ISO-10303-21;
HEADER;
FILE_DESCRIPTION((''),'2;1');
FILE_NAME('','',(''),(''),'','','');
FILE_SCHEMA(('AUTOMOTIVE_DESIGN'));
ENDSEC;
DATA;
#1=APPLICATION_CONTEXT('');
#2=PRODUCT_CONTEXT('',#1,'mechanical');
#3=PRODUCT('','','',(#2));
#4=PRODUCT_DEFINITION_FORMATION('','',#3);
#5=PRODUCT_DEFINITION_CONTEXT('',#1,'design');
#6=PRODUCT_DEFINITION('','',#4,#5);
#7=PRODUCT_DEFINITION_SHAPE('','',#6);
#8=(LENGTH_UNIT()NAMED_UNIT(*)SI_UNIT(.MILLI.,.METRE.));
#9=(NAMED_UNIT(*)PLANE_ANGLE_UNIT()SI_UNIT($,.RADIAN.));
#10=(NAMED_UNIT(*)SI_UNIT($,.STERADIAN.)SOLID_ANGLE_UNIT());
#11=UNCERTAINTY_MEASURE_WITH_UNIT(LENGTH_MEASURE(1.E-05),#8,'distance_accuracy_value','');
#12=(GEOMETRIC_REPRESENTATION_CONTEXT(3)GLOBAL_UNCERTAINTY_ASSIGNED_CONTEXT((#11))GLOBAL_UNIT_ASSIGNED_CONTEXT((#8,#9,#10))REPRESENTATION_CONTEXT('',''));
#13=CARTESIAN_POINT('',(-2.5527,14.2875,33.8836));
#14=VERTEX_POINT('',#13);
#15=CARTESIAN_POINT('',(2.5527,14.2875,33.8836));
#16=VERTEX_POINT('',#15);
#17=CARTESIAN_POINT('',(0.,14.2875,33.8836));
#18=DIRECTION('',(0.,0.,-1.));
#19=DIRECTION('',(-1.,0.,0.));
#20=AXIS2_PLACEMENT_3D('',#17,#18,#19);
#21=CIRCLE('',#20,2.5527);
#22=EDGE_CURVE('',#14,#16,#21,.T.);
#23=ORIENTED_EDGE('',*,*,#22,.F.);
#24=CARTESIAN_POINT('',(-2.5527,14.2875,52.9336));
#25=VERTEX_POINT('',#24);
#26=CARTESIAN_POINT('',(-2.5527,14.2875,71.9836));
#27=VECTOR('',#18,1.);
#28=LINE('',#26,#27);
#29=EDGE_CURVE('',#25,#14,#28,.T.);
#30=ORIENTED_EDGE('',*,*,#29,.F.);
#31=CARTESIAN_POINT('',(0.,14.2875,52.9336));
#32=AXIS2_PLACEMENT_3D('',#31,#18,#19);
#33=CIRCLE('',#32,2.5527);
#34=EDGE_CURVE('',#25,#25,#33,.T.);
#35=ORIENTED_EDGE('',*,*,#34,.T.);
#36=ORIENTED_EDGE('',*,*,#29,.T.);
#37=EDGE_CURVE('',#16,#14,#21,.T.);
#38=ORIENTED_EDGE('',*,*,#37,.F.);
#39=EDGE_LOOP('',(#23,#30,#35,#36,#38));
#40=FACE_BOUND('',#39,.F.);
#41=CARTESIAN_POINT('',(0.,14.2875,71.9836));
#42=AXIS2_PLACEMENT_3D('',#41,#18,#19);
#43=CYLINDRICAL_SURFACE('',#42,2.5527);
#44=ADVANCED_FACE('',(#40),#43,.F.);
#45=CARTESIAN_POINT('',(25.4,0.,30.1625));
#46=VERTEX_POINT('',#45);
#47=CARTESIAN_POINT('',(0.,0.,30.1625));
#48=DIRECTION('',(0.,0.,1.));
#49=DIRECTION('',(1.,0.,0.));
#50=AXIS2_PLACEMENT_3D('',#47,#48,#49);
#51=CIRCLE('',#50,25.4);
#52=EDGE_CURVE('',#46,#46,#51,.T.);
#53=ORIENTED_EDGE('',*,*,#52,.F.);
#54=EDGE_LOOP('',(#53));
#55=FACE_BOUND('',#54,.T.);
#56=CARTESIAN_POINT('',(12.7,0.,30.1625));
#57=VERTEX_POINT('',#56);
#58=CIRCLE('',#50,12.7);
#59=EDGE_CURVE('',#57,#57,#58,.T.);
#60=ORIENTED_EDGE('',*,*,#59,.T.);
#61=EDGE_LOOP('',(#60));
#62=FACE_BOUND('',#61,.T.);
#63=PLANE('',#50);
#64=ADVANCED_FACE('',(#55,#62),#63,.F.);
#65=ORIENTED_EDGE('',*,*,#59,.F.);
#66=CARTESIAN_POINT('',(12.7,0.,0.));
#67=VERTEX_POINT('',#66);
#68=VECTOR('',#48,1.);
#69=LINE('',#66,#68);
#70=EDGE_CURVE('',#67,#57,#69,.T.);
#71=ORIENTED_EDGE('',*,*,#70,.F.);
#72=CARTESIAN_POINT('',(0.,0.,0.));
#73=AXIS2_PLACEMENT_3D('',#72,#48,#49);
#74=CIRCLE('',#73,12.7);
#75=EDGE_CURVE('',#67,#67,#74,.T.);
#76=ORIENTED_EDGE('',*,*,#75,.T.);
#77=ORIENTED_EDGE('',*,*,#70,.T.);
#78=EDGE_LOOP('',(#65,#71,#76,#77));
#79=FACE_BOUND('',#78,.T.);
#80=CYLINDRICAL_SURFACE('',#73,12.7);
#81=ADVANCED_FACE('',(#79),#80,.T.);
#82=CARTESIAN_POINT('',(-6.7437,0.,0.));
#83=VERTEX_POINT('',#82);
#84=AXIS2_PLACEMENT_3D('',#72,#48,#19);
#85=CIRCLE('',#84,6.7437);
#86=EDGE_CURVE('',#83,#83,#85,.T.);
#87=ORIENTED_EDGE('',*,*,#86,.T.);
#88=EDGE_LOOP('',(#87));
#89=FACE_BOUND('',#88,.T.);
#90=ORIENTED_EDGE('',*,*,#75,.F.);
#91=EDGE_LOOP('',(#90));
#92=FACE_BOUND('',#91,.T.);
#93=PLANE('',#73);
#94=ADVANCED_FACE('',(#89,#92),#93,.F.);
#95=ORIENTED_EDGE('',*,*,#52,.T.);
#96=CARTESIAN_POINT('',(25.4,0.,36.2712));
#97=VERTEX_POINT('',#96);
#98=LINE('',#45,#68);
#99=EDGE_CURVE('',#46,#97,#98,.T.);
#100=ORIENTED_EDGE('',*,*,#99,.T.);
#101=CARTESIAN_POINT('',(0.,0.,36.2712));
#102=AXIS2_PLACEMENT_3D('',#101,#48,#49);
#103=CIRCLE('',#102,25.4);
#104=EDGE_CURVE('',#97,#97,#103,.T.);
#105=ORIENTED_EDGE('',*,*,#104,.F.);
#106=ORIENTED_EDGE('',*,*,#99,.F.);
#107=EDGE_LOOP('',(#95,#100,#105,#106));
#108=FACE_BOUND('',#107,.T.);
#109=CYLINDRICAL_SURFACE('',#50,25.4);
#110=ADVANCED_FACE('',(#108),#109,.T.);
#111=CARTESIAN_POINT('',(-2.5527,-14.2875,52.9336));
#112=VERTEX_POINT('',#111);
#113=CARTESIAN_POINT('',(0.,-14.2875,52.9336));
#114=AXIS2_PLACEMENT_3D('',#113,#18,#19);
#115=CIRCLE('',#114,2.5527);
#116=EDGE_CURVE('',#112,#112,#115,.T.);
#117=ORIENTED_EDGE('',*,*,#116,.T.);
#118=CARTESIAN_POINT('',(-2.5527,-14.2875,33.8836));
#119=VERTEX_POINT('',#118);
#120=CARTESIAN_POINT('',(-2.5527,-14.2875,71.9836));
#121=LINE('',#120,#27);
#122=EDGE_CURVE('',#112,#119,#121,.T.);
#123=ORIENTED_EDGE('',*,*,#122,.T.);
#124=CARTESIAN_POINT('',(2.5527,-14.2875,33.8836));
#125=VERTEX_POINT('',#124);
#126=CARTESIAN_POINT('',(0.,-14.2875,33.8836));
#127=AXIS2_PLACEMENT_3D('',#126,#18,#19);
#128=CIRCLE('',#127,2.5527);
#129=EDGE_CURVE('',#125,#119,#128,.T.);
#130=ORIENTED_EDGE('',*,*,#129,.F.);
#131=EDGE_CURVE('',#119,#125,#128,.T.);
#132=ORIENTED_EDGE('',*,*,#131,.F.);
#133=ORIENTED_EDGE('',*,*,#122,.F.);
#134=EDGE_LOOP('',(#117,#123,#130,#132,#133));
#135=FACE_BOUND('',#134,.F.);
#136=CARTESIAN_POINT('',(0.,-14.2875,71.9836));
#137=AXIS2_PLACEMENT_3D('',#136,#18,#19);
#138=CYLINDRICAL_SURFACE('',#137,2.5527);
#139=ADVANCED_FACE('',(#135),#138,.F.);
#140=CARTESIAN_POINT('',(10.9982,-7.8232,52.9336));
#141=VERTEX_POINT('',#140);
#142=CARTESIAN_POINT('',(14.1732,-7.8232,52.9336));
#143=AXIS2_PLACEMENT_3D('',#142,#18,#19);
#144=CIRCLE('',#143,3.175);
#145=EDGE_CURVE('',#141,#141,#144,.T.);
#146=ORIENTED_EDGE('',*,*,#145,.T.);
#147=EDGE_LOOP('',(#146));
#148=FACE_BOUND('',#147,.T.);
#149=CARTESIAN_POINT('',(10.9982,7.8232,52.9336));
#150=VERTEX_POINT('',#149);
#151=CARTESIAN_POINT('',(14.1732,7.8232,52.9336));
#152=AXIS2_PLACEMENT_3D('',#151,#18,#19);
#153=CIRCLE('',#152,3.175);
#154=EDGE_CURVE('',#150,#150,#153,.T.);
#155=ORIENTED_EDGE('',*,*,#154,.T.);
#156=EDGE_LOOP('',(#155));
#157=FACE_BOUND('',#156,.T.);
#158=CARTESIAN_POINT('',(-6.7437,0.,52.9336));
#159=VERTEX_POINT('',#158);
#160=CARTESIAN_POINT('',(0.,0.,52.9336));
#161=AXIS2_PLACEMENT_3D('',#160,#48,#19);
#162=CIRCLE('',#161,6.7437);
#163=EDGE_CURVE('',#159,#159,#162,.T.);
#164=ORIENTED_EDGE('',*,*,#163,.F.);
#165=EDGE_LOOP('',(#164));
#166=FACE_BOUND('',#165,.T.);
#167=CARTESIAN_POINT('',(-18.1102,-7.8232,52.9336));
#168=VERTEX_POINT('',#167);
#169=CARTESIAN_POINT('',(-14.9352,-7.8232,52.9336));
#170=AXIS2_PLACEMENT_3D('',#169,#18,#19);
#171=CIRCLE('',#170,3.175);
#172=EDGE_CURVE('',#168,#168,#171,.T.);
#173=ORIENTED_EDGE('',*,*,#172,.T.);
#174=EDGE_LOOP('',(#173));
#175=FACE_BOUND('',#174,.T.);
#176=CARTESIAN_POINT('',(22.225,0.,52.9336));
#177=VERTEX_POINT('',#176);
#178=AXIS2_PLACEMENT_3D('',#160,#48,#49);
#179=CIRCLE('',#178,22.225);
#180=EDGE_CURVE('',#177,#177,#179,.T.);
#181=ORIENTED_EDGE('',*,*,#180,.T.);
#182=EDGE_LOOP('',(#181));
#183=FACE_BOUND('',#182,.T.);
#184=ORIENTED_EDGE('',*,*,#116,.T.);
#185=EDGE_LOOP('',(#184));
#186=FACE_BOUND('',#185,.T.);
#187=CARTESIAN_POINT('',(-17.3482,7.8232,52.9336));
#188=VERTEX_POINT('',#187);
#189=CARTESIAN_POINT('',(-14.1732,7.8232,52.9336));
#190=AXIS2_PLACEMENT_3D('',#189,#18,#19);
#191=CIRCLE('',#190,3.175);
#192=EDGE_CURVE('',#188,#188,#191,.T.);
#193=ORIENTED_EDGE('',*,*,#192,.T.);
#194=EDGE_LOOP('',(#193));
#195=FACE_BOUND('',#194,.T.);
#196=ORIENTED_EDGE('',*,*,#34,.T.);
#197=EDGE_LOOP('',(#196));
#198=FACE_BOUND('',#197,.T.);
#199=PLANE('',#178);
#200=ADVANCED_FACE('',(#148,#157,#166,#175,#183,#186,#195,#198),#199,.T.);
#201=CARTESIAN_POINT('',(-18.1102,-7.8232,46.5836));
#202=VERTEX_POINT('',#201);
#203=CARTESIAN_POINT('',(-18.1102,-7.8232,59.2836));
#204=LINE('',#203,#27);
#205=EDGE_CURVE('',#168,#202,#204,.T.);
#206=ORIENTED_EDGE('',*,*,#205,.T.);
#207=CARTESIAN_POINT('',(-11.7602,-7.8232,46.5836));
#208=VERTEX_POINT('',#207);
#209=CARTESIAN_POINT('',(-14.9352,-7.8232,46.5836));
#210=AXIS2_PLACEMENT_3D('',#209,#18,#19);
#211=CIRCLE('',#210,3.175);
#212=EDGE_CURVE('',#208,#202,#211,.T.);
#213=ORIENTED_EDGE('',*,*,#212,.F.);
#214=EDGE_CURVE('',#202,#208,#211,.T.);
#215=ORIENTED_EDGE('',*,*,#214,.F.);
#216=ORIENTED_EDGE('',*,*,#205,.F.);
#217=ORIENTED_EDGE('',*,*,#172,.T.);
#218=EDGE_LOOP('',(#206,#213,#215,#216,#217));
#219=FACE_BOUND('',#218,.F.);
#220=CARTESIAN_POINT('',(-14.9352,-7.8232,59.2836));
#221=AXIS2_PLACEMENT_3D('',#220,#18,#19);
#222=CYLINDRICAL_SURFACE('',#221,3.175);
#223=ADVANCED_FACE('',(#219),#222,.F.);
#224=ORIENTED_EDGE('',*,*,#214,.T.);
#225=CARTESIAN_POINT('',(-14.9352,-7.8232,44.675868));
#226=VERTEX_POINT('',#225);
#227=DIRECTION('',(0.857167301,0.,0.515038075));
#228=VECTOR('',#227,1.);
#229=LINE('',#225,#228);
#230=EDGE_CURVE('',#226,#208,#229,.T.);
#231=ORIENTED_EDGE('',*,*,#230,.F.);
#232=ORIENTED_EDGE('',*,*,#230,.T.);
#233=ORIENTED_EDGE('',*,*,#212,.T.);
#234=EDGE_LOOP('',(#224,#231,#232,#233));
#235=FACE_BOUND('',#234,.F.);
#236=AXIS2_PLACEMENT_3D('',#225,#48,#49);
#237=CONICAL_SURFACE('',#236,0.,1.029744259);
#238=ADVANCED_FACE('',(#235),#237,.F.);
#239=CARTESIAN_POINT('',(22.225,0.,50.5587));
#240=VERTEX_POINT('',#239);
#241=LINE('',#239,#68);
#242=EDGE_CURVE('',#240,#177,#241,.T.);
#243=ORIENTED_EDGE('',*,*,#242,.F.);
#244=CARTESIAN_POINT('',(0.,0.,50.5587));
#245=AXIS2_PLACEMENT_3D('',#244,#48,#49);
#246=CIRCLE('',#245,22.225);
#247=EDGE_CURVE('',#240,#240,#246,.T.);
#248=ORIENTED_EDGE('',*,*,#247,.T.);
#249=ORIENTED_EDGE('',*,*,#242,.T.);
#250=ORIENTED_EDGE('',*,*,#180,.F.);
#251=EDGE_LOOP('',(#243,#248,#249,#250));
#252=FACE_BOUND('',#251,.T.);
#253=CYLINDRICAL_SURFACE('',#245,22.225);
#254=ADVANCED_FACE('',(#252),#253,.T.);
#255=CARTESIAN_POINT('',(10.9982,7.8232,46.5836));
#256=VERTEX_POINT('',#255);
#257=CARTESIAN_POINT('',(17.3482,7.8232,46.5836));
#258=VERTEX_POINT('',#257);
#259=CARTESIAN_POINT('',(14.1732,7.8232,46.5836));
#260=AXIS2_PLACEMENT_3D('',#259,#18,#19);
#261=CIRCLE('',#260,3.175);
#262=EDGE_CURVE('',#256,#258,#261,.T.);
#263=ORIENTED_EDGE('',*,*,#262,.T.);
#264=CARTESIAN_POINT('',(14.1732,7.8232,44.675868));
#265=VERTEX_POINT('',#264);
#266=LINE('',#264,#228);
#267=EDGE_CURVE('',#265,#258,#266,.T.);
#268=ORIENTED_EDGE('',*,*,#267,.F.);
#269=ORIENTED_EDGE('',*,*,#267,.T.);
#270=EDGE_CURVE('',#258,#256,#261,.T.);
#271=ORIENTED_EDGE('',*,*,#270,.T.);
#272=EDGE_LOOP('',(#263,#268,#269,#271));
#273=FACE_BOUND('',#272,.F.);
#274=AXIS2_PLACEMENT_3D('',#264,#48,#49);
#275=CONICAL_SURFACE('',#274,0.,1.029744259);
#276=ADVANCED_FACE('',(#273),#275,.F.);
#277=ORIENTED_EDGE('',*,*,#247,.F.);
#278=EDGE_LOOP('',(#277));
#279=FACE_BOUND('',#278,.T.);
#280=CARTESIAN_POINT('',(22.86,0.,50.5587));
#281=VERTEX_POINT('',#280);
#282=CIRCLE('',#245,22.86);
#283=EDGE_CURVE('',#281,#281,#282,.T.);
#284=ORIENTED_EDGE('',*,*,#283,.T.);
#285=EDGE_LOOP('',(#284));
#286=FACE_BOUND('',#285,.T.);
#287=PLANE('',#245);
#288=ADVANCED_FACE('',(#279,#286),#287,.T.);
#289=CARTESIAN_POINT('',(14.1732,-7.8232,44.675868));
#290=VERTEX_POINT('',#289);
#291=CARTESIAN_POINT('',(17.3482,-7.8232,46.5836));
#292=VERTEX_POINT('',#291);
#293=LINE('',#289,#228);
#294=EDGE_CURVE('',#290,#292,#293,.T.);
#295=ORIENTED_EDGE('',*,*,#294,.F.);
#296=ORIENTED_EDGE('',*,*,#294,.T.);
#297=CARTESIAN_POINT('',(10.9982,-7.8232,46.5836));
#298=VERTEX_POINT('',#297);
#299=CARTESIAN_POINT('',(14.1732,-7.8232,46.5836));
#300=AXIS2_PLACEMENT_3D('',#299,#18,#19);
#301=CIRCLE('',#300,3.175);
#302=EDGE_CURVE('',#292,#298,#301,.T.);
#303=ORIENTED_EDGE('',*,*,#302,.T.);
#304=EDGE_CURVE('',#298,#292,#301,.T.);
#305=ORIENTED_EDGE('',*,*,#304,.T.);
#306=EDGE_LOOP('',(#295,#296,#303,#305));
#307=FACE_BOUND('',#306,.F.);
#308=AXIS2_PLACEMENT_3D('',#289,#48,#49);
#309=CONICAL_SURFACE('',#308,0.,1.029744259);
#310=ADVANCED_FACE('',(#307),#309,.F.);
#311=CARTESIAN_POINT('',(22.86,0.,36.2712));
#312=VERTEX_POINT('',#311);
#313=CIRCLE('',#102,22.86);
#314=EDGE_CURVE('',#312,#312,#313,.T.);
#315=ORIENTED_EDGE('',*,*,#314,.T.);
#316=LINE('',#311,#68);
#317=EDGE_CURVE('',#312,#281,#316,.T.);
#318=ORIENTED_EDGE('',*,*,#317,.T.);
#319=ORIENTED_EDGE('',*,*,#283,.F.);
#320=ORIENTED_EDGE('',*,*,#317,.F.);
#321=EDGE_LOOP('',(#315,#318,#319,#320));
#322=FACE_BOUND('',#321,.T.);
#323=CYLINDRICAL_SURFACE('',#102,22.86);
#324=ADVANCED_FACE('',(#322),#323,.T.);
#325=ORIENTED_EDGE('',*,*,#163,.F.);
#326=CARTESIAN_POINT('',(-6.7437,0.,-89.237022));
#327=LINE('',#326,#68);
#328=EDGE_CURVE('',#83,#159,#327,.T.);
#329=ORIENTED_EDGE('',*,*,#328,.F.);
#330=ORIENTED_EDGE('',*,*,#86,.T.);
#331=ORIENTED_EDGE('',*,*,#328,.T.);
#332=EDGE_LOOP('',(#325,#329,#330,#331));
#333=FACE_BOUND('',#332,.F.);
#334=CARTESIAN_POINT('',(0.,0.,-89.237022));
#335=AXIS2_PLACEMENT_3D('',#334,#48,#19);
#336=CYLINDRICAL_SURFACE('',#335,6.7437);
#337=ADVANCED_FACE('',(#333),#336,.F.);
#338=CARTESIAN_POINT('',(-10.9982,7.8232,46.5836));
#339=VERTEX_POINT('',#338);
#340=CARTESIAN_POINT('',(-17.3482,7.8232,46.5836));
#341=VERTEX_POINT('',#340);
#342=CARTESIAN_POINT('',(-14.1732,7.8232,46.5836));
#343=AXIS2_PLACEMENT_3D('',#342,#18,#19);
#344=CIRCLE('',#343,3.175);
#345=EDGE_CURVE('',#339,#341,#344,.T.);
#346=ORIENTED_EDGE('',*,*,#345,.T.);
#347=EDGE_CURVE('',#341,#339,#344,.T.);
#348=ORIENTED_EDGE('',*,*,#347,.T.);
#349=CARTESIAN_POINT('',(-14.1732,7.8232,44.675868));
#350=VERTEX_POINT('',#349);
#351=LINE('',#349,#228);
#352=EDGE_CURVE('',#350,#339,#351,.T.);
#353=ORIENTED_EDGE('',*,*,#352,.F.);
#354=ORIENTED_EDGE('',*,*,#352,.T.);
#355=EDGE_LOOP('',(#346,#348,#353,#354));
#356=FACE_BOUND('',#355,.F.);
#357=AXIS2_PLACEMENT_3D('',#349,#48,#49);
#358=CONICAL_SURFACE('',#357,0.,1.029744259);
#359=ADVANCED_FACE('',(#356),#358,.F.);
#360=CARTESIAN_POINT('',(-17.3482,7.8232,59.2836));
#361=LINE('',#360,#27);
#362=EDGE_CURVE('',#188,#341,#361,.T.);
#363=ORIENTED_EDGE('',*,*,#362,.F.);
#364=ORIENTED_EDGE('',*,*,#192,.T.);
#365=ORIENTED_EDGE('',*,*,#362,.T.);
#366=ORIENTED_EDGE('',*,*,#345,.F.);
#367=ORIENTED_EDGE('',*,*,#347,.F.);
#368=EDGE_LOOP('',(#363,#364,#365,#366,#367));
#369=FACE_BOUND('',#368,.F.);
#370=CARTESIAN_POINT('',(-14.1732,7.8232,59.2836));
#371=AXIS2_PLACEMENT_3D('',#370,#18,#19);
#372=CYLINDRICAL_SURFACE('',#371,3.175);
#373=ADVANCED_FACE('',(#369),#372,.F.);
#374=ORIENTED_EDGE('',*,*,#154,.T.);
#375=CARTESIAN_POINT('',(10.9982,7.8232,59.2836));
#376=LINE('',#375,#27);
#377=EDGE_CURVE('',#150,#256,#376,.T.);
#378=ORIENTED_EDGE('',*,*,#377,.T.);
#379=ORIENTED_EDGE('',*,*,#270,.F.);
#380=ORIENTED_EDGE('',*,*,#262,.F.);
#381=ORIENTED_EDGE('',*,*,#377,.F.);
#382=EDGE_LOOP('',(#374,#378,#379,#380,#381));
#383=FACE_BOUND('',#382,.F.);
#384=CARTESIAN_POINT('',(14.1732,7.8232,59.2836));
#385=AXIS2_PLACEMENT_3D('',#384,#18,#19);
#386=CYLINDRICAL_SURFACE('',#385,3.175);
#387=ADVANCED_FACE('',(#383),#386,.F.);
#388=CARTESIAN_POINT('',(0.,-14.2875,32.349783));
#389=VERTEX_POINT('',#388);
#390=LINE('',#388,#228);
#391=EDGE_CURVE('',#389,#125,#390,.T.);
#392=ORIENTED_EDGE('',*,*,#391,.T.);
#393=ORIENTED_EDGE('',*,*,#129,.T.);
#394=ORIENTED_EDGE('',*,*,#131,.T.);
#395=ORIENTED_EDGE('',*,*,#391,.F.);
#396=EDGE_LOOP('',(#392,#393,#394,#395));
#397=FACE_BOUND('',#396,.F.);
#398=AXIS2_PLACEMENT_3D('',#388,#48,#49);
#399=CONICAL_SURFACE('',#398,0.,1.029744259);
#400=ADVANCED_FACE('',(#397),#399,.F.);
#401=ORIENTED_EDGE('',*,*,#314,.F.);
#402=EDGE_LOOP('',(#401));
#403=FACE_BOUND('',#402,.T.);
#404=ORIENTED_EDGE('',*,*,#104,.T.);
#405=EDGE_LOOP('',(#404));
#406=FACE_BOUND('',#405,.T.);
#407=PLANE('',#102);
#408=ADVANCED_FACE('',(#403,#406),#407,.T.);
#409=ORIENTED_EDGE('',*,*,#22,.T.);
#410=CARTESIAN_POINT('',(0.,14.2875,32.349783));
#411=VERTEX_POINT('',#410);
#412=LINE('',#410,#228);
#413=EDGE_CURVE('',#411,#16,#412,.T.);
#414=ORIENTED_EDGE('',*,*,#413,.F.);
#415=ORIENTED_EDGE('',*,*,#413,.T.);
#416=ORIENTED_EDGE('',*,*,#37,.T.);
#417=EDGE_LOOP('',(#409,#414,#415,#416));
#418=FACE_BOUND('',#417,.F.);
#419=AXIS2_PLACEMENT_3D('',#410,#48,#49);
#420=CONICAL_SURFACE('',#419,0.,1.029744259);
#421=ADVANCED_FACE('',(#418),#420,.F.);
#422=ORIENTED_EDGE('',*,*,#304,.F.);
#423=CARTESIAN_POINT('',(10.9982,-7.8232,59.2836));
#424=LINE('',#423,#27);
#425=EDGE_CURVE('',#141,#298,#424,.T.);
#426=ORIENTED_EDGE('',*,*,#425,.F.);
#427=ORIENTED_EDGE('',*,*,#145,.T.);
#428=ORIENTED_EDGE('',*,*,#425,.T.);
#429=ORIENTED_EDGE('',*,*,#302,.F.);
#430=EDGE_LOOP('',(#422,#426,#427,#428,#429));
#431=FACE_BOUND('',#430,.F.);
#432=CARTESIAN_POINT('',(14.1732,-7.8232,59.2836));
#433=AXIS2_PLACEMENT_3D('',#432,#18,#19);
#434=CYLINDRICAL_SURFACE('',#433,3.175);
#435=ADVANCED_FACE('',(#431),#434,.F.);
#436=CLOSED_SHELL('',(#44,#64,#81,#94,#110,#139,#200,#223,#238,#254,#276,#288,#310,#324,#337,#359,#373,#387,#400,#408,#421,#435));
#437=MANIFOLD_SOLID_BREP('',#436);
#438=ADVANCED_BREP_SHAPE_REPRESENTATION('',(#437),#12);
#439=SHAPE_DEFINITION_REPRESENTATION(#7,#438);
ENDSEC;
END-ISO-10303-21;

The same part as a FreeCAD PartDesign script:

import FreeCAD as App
import Part
import Sketcher
from FreeCAD import Vector
Q = App.Units.Quantity


def add_polygon(sketch, points):
    """Adds a closed chain of lines whose ends are joined by coincident constraints."""
    first, n = sketch.GeometryCount, len(points)
    for a, b in zip(points, points[1:] + points[:1]):
        sketch.addGeometry(Part.LineSegment(App.Vector(*a, 0), App.Vector(*b, 0)), False)
    for i in range(n):
        sketch.addConstraint(Sketcher.Constraint("Coincident", first + i, 2, first + (i + 1) % n, 1))

doc = App.newDocument("Part")
body = doc.addObject("PartDesign::Body", "Body")

sketch1 = doc.addObject("Sketcher::SketchObject", "Sketch")
body.addObject(sketch1)
sketch1.AttachmentSupport = (doc.XZ_Plane, [""])
sketch1.MapMode = "FlatFace"
add_polygon(sketch1, [(0, 52.9336), (0, 0), (12.7, 0), (12.7, 30.1625), (25.4, 30.1625), (25.4, 36.2712), (22.86, 36.2712), (22.86, 50.5587), (22.225, 50.5587), (22.225, 52.9336)])
sketch1.addConstraint([
    Sketcher.Constraint("Vertical", 0),
    Sketcher.Constraint("Horizontal", 1),
    Sketcher.Constraint("Vertical", 2),
    Sketcher.Constraint("Horizontal", 3),
    Sketcher.Constraint("Vertical", 4),
    Sketcher.Constraint("Horizontal", 5),
    Sketcher.Constraint("Vertical", 6),
    Sketcher.Constraint("Horizontal", 7),
    Sketcher.Constraint("Vertical", 8),
    Sketcher.Constraint("Horizontal", 9),
    Sketcher.Constraint("Coincident", 0, 2, -1, 1),
    Sketcher.Constraint("Equal", 1, 3),
    Sketcher.Constraint("DistanceX", 1, 1, 1, 2, Q("0.5 in")),
    Sketcher.Constraint("DistanceX", 5, 2, 5, 1, Q("0.1 in")),
    Sketcher.Constraint("DistanceX", 7, 2, 7, 1, Q("0.025 in")),
    Sketcher.Constraint("DistanceY", 0, 2, 0, 1, Q("2.084 in")),
    Sketcher.Constraint("DistanceY", 2, 1, 2, 2, Q("1.1875 in")),
    Sketcher.Constraint("DistanceY", 6, 1, 6, 2, Q("0.5625 in")),
    Sketcher.Constraint("DistanceY", 4, 1, 4, 2, Q("0.2405 in")),
])
revolution = doc.addObject("PartDesign::Revolution", "Revolution")
body.addObject(revolution)
revolution.Profile = sketch1
revolution.ReferenceAxis = (sketch1, ["V_Axis"])
revolution.Angle = 360

sketch2 = doc.addObject("Sketcher::SketchObject", "Sketch001")
body.addObject(sketch2)
sketch2.AttachmentSupport = (doc.XY_Plane, [""])
sketch2.MapMode = "FlatFace"
sketch2.addGeometry(Part.Circle(Vector(0, 0, 0), Vector(0, 0, 1), 6.7437), False)
sketch2.addConstraint([
    Sketcher.Constraint("Coincident", 0, 3, -1, 1),
    Sketcher.Constraint("Diameter", 0, Q("0.531 in")),
])
doc.recompute()
hole = doc.addObject("PartDesign::Hole", "Hole")
body.addObject(hole)
hole.Profile = sketch2
hole.ThreadType = "None"
hole.Diameter = Q("0.531 in")
hole.DepthType = "ThroughAll"
hole.Reversed = True

sketch3 = doc.addObject("Sketcher::SketchObject", "Sketch002")
body.addObject(sketch3)
sketch3.AttachmentSupport = (doc.XY_Plane, [""])
sketch3.MapMode = "FlatFace"
sketch3.AttachmentOffset = App.Placement(Vector(0, 0, 2.084 * 25.4), App.Rotation())
sketch3.addGeometry([
    Part.Circle(Vector(-14.1732, 7.8232, 0), Vector(0, 0, 1), 3.175),
    Part.Circle(Vector(14.1732, 7.8232, 0), Vector(0, 0, 1), 3.175),
], False)
sketch3.addConstraint([
    Sketcher.Constraint("Equal", 0, 1),
    Sketcher.Constraint("Symmetric", 0, 3, 1, 3, -2),
    Sketcher.Constraint("Diameter", 0, Q("0.25 in")),
    Sketcher.Constraint("DistanceX", 0, 3, -1, 1, Q("0.558 in")),
    Sketcher.Constraint("DistanceY", -1, 1, 0, 3, Q("0.308 in")),
])
doc.recompute()
hole2 = doc.addObject("PartDesign::Hole", "Hole001")
body.addObject(hole2)
hole2.Profile = sketch3
hole2.ThreadType = "None"
hole2.Diameter = Q("0.25 in")
hole2.DepthType = "Dimension"
hole2.Depth = Q("0.25 in")
hole2.DrillPoint = "Angled"
hole2.DrillPointAngle = 118

sketch4 = doc.addObject("Sketcher::SketchObject", "Sketch003")
body.addObject(sketch4)
sketch4.AttachmentSupport = (doc.XY_Plane, [""])
sketch4.MapMode = "FlatFace"
sketch4.AttachmentOffset = App.Placement(Vector(0, 0, 2.084 * 25.4), App.Rotation())
sketch4.addGeometry([
    Part.Circle(Vector(-14.9352, -7.8232, 0), Vector(0, 0, 1), 3.175),
    Part.Circle(Vector(14.1732, -7.8232, 0), Vector(0, 0, 1), 3.175),
], False)
sketch4.addConstraint([
    Sketcher.Constraint("Equal", 0, 1),
    Sketcher.Constraint("Horizontal", 0, 3, 1, 3),
    Sketcher.Constraint("Diameter", 0, Q("0.25 in")),
    Sketcher.Constraint("DistanceX", 0, 3, -1, 1, Q("0.588 in")),
    Sketcher.Constraint("DistanceY", 0, 3, -1, 1, Q("0.308 in")),
    Sketcher.Constraint("DistanceX", -1, 1, 1, 3, Q("0.558 in")),
])
doc.recompute()
hole3 = doc.addObject("PartDesign::Hole", "Hole002")
body.addObject(hole3)
hole3.Profile = sketch4
hole3.ThreadType = "None"
hole3.Diameter = Q("0.25 in")
hole3.DepthType = "Dimension"
hole3.Depth = Q("0.25 in")
hole3.DrillPoint = "Angled"
hole3.DrillPointAngle = 118

sketch5 = doc.addObject("Sketcher::SketchObject", "Sketch004")
body.addObject(sketch5)
sketch5.AttachmentSupport = (doc.XY_Plane, [""])
sketch5.MapMode = "FlatFace"
sketch5.AttachmentOffset = App.Placement(Vector(0, 0, 2.084 * 25.4), App.Rotation())
sketch5.addGeometry([
    Part.Circle(Vector(0, -14.2875, 0), Vector(0, 0, 1), 2.5527),
    Part.Circle(Vector(0, 14.2875, 0), Vector(0, 0, 1), 2.5527),
], False)
sketch5.addConstraint([
    Sketcher.Constraint("Equal", 0, 1),
    Sketcher.Constraint("Symmetric", 0, 3, 1, 3, -1, 1),
    Sketcher.Constraint("PointOnObject", 0, 3, -2),
    Sketcher.Constraint("Diameter", 0, Q("0.201 in")),
    Sketcher.Constraint("DistanceY", 0, 3, -1, 1, Q("0.5625 in")),
])
doc.recompute()
hole4 = doc.addObject("PartDesign::Hole", "Hole003")
body.addObject(hole4)
hole4.Profile = sketch5
hole4.ThreadType = "None"
hole4.Diameter = Q("0.201 in")
hole4.DepthType = "Dimension"
hole4.Depth = Q("0.75 in")
hole4.DrillPoint = "Angled"
hole4.DrillPointAngle = 118

doc.recompute()
